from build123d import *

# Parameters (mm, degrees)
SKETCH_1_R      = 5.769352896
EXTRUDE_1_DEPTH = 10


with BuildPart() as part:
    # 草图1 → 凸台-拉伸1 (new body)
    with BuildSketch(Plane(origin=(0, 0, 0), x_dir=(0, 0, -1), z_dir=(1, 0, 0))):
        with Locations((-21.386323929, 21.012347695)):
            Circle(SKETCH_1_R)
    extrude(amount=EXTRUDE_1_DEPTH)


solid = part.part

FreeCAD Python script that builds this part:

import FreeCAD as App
import Part
import Sketcher
from FreeCAD import Vector
Q = App.Units.Quantity

doc = App.newDocument("Part")
params = doc.addObject("Spreadsheet::Sheet", "Params")
for row, (alias, value) in enumerate([
    ("pad1_length", "10 mm"),
], start=1):
    params.set(f"A{row}", alias)
    params.set(f"B{row}", "=" + value)
    params.setAlias(f"B{row}", alias)

body = doc.addObject("PartDesign::Body", "Body")

# Sketch on YZ plane
sketch1 = doc.addObject("Sketcher::SketchObject", "Sketch")
body.addObject(sketch1)
sketch1.AttachmentSupport = (doc.YZ_Plane, [""])
sketch1.MapMode = "FlatFace"
sketch1.addGeometry(Part.Circle(Vector(21, 21, 0), Vector(0, 0, 1), 6), False)
sketch1.addConstraint([
    Sketcher.Constraint("Diameter", 0, Q("11.538706 mm")),
    Sketcher.Constraint("DistanceX", -1, 1, 0, 3, Q("21.012348 mm")),
    Sketcher.Constraint("DistanceY", -1, 1, 0, 3, Q("21.386324 mm")),
])
pad1 = doc.addObject("PartDesign::Pad", "Pad")
body.addObject(pad1)
pad1.Profile = sketch1
pad1.setExpression("Length", "Params.pad1_length")

doc.recompute()
